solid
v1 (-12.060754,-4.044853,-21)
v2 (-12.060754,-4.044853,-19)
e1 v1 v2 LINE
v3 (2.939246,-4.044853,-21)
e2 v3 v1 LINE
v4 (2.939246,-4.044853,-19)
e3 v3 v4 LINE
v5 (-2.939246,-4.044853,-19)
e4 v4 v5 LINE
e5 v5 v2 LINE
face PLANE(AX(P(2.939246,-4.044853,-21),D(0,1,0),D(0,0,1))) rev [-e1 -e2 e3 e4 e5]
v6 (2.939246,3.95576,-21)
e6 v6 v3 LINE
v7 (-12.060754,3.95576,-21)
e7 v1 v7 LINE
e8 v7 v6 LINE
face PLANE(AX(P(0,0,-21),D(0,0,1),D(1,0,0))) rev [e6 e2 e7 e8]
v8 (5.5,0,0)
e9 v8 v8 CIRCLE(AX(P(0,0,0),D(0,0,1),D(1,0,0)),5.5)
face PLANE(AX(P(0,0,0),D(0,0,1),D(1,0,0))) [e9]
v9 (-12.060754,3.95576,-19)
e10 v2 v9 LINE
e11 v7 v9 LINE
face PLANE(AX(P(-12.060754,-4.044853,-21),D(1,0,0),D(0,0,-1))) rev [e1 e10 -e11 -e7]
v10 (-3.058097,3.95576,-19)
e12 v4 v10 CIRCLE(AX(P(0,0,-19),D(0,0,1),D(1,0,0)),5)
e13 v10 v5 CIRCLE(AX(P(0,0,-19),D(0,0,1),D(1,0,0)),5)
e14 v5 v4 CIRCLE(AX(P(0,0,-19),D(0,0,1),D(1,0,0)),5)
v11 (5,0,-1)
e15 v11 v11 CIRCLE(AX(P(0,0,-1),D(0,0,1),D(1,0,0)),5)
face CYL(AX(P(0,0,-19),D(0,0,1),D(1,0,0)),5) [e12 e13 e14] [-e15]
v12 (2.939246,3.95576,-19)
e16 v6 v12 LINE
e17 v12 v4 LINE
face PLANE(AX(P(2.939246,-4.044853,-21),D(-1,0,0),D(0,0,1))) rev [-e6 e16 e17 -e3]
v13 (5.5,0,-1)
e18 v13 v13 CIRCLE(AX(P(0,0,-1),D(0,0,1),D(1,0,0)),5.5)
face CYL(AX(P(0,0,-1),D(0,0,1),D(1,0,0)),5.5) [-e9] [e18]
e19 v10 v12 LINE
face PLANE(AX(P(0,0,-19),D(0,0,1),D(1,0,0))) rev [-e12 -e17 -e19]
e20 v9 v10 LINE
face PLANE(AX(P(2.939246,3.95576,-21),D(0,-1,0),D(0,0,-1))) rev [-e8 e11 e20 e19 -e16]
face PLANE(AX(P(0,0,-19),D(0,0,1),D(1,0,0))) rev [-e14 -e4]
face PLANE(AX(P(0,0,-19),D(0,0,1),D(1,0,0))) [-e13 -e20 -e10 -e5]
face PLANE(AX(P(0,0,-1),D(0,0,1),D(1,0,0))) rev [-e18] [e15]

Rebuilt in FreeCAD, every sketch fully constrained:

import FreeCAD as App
import Part
import Sketcher
Q = App.Units.Quantity

doc = App.newDocument("Part")
body = doc.addObject("PartDesign::Body", "Body")

# Sketch on XY plane
sketch1 = body.newObject("Sketcher::SketchObject", "Sketch")
sketch1.AttachmentSupport = (doc.getObject("XY_Plane"), [""])
sketch1.MapMode = "FlatFace"
sketch1.addGeometry([
    Part.Circle(App.Vector(0, 0, 0), App.Vector(0, 0, 1), 5.5),
    Part.Circle(App.Vector(0, 0, 0), App.Vector(0, 0, 1), 5),
], False)
sketch1.addConstraint([
    Sketcher.Constraint("Coincident", 0, 3, -1, 1),
    Sketcher.Constraint("Coincident", 1, 3, -1, 1),
    Sketcher.Constraint("Diameter", 0, Q("11 mm")),
    Sketcher.Constraint("Diameter", 1, Q("10 mm")),
])
pad1 = body.newObject("PartDesign::Pad", "Pad")
pad1.Profile = sketch1
pad1.Length = 1
pad1.Reversed = True

# Sketch on XY plane
sketch2 = body.newObject("Sketcher::SketchObject", "Sketch001")
sketch2.AttachmentSupport = (doc.getObject("XY_Plane"), [""])
sketch2.MapMode = "FlatFace"
sketch2.addGeometry(Part.Circle(App.Vector(0, 0, 0), App.Vector(0, 0, 1), 5), False)
sketch2.addConstraint([
    Sketcher.Constraint("Coincident", 0, 3, -1, 1),
    Sketcher.Constraint("Diameter", 0, Q("10 mm")),
])
pad2 = body.newObject("PartDesign::Pad", "Pad001")
pad2.Profile = sketch2
pad2.Length = 19
pad2.Reversed = True

# Sketch on XY plane
sketch3 = body.newObject("Sketcher::SketchObject", "Sketch002")
sketch3.AttachmentSupport = (doc.getObject("XY_Plane"), [""])
sketch3.MapMode = "FlatFace"
sketch3.AttachmentOffset = App.Placement(App.Vector(0, 0, -19), App.Rotation())
sketch3.addGeometry([
    Part.LineSegment(App.Vector(2.939246, 3.95576, 0), App.Vector(2.939246, -4.044853, 0)),
    Part.LineSegment(App.Vector(2.939246, -4.044853, 0), App.Vector(-12.060754, -4.044853, 0)),
    Part.LineSegment(App.Vector(-12.060754, -4.044853, 0), App.Vector(-12.060754, 3.95576, 0)),
    Part.LineSegment(App.Vector(-12.060754, 3.95576, 0), App.Vector(2.939246, 3.95576, 0)),
], False)
sketch3.addConstraint([
    Sketcher.Constraint("Coincident", 0, 2, 1, 1),
    Sketcher.Constraint("Coincident", 1, 2, 2, 1),
    Sketcher.Constraint("Coincident", 2, 2, 3, 1),
    Sketcher.Constraint("Coincident", 3, 2, 0, 1),
    Sketcher.Constraint("Vertical", 0),
    Sketcher.Constraint("Horizontal", 1),
    Sketcher.Constraint("Vertical", 2),
    Sketcher.Constraint("Horizontal", 3),
    Sketcher.Constraint("DistanceX", 1, 2, 1, 1, Q("15 mm")),
    Sketcher.Constraint("DistanceY", 0, 2, 0, 1, Q("8.000613 mm")),
    Sketcher.Constraint("DistanceY", -1, 1, 2, 2, Q("3.95576 mm")),
    Sketcher.Constraint("DistanceX", -1, 1, 0, 2, Q("2.939246 mm")),
])
pad3 = body.newObject("PartDesign::Pad", "Pad002")
pad3.Profile = sketch3
pad3.Length = 2
pad3.Reversed = True

doc.recompute()
